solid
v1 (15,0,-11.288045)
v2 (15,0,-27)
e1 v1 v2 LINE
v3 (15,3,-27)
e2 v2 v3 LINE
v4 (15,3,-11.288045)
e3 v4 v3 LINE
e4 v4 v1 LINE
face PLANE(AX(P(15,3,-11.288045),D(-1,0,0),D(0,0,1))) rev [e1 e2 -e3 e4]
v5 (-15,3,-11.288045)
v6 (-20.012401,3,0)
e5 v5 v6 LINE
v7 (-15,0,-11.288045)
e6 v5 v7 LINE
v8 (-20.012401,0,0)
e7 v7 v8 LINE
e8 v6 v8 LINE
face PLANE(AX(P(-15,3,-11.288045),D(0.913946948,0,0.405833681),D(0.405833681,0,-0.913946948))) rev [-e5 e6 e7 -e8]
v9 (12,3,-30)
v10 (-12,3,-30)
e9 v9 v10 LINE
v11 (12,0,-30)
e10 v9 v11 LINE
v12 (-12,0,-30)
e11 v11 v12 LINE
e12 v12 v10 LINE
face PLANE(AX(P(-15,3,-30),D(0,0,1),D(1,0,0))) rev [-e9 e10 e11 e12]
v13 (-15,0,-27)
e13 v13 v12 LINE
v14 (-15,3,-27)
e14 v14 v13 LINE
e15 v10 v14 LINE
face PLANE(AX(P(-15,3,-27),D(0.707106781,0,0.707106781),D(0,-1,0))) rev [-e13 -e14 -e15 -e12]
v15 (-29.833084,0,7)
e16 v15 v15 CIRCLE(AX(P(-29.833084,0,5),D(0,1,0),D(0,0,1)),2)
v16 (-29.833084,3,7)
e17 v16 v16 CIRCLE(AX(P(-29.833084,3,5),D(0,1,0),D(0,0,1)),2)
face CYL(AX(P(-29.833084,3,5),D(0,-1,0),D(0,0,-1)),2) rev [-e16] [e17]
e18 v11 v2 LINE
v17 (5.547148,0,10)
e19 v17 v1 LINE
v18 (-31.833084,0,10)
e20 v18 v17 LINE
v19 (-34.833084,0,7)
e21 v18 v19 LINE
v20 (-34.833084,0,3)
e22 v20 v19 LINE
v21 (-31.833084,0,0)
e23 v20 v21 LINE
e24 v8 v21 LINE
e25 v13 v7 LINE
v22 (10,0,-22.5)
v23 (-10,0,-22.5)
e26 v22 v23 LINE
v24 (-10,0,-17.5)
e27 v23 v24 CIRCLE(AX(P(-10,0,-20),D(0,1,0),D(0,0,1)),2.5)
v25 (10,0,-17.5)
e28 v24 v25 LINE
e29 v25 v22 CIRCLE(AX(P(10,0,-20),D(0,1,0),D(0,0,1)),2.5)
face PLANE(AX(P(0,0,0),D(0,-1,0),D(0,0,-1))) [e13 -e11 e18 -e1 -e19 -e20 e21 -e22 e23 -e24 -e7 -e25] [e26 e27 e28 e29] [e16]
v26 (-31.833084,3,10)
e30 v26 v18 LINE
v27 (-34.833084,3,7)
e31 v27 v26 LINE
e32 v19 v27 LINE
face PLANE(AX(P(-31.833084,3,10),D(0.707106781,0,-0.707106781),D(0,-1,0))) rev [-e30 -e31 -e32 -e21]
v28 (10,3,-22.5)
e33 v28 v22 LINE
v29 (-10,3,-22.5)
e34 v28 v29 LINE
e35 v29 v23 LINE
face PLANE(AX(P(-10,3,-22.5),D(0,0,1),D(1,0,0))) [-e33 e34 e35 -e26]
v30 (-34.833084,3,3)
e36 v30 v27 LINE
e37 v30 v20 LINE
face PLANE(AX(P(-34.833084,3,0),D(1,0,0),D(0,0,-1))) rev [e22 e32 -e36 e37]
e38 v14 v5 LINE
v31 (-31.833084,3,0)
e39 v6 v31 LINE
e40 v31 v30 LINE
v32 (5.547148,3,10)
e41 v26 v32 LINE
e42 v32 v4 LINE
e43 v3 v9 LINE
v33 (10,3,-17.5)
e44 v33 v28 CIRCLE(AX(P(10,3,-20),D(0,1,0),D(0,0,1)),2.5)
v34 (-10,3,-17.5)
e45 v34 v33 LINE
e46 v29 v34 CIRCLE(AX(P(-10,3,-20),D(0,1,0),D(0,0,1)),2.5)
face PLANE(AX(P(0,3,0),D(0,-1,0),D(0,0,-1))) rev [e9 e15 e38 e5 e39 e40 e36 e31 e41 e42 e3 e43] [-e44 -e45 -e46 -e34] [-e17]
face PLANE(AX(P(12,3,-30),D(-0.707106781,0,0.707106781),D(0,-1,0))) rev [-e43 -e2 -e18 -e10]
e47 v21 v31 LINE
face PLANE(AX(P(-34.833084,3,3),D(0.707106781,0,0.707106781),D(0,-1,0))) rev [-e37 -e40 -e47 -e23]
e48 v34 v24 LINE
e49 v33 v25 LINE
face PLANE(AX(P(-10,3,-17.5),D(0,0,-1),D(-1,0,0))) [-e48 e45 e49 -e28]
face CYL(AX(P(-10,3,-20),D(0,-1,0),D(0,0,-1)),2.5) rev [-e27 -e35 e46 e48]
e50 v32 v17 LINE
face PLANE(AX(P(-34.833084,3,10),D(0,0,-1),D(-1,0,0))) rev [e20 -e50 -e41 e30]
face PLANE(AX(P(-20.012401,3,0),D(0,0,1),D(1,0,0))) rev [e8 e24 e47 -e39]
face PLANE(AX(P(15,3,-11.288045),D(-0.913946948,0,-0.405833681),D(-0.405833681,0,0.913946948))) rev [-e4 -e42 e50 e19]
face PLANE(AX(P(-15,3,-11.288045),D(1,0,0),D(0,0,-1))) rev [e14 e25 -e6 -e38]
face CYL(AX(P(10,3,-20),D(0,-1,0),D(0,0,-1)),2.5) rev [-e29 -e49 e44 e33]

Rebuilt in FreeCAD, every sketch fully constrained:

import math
import FreeCAD as App
import Part
import Sketcher
from FreeCAD import Vector


def edges_at(feature, points):
    """Names of the edges that pass closest to the given points."""
    edges = feature.Shape.Edges
    near = lambda p: min(range(len(edges)), key=lambda i: edges[i].distToShape(Part.Vertex(*p))[0])
    return sorted({f"Edge{near(p) + 1}" for p in points})


def add_polygon(sketch, points):
    """Adds a closed chain of lines whose ends are joined by coincident constraints."""
    first, n = sketch.GeometryCount, len(points)
    for a, b in zip(points, points[1:] + points[:1]):
        sketch.addGeometry(Part.LineSegment(App.Vector(*a, 0), App.Vector(*b, 0)), False)
    for i in range(n):
        sketch.addConstraint(Sketcher.Constraint("Coincident", first + i, 2, first + (i + 1) % n, 1))

doc = App.newDocument("Part")
params = doc.addObject("Spreadsheet::Sheet", "Params")
for row, (alias, value) in enumerate([
    ("sketch1_diameter", "4 mm"),
    ("sketch1_radius", "2.5 mm"),
    ("sketch1_width", "30 mm"),
    ("sketch1_width2", "20 mm"),
    ("sketch1_height", "10 mm"),
    ("pad1_length", "3 mm"),
    ("chamfer_size", "3 mm"),
], start=1):
    params.set(f"A{row}", alias)
    params.set(f"B{row}", "=" + value)
    params.setAlias(f"B{row}", alias)

body = doc.addObject("PartDesign::Body", "Body")

# Sketch on XZ plane
sketch1 = body.newObject("Sketcher::SketchObject", "Sketch")
sketch1.AttachmentSupport = (doc.getObject("XZ_Plane"), [""])
sketch1.MapMode = "FlatFace"
add_polygon(sketch1, [(-15, -30), (-15, -11.3), (-20, 0), (-34.8, 0), (-34.8, 10), (5.5, 10), (15, -11.3), (15, -30)])  # lines 0-7
sketch1.addGeometry(Part.Circle(Vector(-29.8, 5, 0), Vector(0, 0, 1), 2), False)  # 8
sketch1.addGeometry(Part.ArcOfCircle(Part.Circle(Vector(-10, -20, 0), Vector(0, 0, 1), 2.5), math.radians(90), math.radians(270)), False)  # 9
sketch1.addGeometry(Part.LineSegment(Vector(-10, -22.5, 0), Vector(10, -22.5, 0)), False)  # 10
sketch1.addGeometry(Part.ArcOfCircle(Part.Circle(Vector(10, -20, 0), Vector(0, 0, 1), 2.5), math.radians(-90), math.radians(90)), False)  # 11
sketch1.addGeometry(Part.LineSegment(Vector(10, -17.5, 0), Vector(-10, -17.5, 0)), False)  # 12
sketch1.addConstraint([
    Sketcher.Constraint("Tangent", 9, 2, 10, 1),
    Sketcher.Constraint("Tangent", 10, 2, 11, 1),
    Sketcher.Constraint("Tangent", 11, 2, 12, 1),
    Sketcher.Constraint("Tangent", 12, 2, 9, 1),
    Sketcher.Constraint("Vertical", 0),
    Sketcher.Constraint("Horizontal", 2),
    Sketcher.Constraint("Vertical", 3),
    Sketcher.Constraint("Horizontal", 4),
    Sketcher.Constraint("Vertical", 6),
    Sketcher.Constraint("Horizontal", 7),
    Sketcher.Constraint("Horizontal", 10),
    Sketcher.Constraint("Horizontal", 12),
    Sketcher.Constraint("Symmetric", 0, 2, 5, 2, -2),
    Sketcher.Constraint("PointOnObject", 1, 2, -1),
    Sketcher.Constraint("Parallel", 1, 5),
    Sketcher.Constraint("Diameter", 8, 4.0),
    Sketcher.Constraint("Radius", 9, 2.5),
    Sketcher.Constraint("DistanceX", 7, 2, 7, 1, 30.0),
    Sketcher.Constraint("DistanceX", 10, 1, 10, 2, 20.0),
    Sketcher.Constraint("DistanceY", 3, 1, 3, 2, 10.0),
    Sketcher.Constraint("DistanceY", -1, 1, 8, 3, 5.0),
    Sketcher.Constraint("DistanceX", 9, 3, -1, 1, 10.0),
    Sketcher.Constraint("DistanceY", 9, 3, -1, 1, 20.0),
    Sketcher.Constraint("DistanceY", 6, 2, -1, 1, 30.0),
    Sketcher.Constraint("DistanceX", 2, 2, 8, 3, 5.0),
    Sketcher.Constraint("DistanceX", 4, 1, 4, 2, 40.380232),
    Sketcher.Constraint("DistanceX", 1, 2, -1, 1, 20.012401),
    Sketcher.Constraint("Distance", 5, 23.29243),
])
sketch1.setExpression("Constraints[23]", "Params.sketch1_diameter")
sketch1.setExpression("Constraints[24]", "Params.sketch1_radius")
sketch1.setExpression("Constraints[25]", "Params.sketch1_width")
sketch1.setExpression("Constraints[26]", "Params.sketch1_width2")
sketch1.setExpression("Constraints[27]", "Params.sketch1_height")
pad1 = body.newObject("PartDesign::Pad", "Pad")
pad1.Profile = sketch1
pad1.setExpression("Length", "Params.pad1_length")
pad1.Reversed = True
doc.recompute()

chamfer = body.newObject("PartDesign::Chamfer", "Chamfer")
chamfer.Base = (pad1, edges_at(pad1, [
    (-34.833, 1.5, 10),
    (-34.833, 1.5, 0),
    (-15, 1.5, -30),
    (15, 1.5, -30),
]))
chamfer.setExpression("Size", "Params.chamfer_size")

doc.recompute()
